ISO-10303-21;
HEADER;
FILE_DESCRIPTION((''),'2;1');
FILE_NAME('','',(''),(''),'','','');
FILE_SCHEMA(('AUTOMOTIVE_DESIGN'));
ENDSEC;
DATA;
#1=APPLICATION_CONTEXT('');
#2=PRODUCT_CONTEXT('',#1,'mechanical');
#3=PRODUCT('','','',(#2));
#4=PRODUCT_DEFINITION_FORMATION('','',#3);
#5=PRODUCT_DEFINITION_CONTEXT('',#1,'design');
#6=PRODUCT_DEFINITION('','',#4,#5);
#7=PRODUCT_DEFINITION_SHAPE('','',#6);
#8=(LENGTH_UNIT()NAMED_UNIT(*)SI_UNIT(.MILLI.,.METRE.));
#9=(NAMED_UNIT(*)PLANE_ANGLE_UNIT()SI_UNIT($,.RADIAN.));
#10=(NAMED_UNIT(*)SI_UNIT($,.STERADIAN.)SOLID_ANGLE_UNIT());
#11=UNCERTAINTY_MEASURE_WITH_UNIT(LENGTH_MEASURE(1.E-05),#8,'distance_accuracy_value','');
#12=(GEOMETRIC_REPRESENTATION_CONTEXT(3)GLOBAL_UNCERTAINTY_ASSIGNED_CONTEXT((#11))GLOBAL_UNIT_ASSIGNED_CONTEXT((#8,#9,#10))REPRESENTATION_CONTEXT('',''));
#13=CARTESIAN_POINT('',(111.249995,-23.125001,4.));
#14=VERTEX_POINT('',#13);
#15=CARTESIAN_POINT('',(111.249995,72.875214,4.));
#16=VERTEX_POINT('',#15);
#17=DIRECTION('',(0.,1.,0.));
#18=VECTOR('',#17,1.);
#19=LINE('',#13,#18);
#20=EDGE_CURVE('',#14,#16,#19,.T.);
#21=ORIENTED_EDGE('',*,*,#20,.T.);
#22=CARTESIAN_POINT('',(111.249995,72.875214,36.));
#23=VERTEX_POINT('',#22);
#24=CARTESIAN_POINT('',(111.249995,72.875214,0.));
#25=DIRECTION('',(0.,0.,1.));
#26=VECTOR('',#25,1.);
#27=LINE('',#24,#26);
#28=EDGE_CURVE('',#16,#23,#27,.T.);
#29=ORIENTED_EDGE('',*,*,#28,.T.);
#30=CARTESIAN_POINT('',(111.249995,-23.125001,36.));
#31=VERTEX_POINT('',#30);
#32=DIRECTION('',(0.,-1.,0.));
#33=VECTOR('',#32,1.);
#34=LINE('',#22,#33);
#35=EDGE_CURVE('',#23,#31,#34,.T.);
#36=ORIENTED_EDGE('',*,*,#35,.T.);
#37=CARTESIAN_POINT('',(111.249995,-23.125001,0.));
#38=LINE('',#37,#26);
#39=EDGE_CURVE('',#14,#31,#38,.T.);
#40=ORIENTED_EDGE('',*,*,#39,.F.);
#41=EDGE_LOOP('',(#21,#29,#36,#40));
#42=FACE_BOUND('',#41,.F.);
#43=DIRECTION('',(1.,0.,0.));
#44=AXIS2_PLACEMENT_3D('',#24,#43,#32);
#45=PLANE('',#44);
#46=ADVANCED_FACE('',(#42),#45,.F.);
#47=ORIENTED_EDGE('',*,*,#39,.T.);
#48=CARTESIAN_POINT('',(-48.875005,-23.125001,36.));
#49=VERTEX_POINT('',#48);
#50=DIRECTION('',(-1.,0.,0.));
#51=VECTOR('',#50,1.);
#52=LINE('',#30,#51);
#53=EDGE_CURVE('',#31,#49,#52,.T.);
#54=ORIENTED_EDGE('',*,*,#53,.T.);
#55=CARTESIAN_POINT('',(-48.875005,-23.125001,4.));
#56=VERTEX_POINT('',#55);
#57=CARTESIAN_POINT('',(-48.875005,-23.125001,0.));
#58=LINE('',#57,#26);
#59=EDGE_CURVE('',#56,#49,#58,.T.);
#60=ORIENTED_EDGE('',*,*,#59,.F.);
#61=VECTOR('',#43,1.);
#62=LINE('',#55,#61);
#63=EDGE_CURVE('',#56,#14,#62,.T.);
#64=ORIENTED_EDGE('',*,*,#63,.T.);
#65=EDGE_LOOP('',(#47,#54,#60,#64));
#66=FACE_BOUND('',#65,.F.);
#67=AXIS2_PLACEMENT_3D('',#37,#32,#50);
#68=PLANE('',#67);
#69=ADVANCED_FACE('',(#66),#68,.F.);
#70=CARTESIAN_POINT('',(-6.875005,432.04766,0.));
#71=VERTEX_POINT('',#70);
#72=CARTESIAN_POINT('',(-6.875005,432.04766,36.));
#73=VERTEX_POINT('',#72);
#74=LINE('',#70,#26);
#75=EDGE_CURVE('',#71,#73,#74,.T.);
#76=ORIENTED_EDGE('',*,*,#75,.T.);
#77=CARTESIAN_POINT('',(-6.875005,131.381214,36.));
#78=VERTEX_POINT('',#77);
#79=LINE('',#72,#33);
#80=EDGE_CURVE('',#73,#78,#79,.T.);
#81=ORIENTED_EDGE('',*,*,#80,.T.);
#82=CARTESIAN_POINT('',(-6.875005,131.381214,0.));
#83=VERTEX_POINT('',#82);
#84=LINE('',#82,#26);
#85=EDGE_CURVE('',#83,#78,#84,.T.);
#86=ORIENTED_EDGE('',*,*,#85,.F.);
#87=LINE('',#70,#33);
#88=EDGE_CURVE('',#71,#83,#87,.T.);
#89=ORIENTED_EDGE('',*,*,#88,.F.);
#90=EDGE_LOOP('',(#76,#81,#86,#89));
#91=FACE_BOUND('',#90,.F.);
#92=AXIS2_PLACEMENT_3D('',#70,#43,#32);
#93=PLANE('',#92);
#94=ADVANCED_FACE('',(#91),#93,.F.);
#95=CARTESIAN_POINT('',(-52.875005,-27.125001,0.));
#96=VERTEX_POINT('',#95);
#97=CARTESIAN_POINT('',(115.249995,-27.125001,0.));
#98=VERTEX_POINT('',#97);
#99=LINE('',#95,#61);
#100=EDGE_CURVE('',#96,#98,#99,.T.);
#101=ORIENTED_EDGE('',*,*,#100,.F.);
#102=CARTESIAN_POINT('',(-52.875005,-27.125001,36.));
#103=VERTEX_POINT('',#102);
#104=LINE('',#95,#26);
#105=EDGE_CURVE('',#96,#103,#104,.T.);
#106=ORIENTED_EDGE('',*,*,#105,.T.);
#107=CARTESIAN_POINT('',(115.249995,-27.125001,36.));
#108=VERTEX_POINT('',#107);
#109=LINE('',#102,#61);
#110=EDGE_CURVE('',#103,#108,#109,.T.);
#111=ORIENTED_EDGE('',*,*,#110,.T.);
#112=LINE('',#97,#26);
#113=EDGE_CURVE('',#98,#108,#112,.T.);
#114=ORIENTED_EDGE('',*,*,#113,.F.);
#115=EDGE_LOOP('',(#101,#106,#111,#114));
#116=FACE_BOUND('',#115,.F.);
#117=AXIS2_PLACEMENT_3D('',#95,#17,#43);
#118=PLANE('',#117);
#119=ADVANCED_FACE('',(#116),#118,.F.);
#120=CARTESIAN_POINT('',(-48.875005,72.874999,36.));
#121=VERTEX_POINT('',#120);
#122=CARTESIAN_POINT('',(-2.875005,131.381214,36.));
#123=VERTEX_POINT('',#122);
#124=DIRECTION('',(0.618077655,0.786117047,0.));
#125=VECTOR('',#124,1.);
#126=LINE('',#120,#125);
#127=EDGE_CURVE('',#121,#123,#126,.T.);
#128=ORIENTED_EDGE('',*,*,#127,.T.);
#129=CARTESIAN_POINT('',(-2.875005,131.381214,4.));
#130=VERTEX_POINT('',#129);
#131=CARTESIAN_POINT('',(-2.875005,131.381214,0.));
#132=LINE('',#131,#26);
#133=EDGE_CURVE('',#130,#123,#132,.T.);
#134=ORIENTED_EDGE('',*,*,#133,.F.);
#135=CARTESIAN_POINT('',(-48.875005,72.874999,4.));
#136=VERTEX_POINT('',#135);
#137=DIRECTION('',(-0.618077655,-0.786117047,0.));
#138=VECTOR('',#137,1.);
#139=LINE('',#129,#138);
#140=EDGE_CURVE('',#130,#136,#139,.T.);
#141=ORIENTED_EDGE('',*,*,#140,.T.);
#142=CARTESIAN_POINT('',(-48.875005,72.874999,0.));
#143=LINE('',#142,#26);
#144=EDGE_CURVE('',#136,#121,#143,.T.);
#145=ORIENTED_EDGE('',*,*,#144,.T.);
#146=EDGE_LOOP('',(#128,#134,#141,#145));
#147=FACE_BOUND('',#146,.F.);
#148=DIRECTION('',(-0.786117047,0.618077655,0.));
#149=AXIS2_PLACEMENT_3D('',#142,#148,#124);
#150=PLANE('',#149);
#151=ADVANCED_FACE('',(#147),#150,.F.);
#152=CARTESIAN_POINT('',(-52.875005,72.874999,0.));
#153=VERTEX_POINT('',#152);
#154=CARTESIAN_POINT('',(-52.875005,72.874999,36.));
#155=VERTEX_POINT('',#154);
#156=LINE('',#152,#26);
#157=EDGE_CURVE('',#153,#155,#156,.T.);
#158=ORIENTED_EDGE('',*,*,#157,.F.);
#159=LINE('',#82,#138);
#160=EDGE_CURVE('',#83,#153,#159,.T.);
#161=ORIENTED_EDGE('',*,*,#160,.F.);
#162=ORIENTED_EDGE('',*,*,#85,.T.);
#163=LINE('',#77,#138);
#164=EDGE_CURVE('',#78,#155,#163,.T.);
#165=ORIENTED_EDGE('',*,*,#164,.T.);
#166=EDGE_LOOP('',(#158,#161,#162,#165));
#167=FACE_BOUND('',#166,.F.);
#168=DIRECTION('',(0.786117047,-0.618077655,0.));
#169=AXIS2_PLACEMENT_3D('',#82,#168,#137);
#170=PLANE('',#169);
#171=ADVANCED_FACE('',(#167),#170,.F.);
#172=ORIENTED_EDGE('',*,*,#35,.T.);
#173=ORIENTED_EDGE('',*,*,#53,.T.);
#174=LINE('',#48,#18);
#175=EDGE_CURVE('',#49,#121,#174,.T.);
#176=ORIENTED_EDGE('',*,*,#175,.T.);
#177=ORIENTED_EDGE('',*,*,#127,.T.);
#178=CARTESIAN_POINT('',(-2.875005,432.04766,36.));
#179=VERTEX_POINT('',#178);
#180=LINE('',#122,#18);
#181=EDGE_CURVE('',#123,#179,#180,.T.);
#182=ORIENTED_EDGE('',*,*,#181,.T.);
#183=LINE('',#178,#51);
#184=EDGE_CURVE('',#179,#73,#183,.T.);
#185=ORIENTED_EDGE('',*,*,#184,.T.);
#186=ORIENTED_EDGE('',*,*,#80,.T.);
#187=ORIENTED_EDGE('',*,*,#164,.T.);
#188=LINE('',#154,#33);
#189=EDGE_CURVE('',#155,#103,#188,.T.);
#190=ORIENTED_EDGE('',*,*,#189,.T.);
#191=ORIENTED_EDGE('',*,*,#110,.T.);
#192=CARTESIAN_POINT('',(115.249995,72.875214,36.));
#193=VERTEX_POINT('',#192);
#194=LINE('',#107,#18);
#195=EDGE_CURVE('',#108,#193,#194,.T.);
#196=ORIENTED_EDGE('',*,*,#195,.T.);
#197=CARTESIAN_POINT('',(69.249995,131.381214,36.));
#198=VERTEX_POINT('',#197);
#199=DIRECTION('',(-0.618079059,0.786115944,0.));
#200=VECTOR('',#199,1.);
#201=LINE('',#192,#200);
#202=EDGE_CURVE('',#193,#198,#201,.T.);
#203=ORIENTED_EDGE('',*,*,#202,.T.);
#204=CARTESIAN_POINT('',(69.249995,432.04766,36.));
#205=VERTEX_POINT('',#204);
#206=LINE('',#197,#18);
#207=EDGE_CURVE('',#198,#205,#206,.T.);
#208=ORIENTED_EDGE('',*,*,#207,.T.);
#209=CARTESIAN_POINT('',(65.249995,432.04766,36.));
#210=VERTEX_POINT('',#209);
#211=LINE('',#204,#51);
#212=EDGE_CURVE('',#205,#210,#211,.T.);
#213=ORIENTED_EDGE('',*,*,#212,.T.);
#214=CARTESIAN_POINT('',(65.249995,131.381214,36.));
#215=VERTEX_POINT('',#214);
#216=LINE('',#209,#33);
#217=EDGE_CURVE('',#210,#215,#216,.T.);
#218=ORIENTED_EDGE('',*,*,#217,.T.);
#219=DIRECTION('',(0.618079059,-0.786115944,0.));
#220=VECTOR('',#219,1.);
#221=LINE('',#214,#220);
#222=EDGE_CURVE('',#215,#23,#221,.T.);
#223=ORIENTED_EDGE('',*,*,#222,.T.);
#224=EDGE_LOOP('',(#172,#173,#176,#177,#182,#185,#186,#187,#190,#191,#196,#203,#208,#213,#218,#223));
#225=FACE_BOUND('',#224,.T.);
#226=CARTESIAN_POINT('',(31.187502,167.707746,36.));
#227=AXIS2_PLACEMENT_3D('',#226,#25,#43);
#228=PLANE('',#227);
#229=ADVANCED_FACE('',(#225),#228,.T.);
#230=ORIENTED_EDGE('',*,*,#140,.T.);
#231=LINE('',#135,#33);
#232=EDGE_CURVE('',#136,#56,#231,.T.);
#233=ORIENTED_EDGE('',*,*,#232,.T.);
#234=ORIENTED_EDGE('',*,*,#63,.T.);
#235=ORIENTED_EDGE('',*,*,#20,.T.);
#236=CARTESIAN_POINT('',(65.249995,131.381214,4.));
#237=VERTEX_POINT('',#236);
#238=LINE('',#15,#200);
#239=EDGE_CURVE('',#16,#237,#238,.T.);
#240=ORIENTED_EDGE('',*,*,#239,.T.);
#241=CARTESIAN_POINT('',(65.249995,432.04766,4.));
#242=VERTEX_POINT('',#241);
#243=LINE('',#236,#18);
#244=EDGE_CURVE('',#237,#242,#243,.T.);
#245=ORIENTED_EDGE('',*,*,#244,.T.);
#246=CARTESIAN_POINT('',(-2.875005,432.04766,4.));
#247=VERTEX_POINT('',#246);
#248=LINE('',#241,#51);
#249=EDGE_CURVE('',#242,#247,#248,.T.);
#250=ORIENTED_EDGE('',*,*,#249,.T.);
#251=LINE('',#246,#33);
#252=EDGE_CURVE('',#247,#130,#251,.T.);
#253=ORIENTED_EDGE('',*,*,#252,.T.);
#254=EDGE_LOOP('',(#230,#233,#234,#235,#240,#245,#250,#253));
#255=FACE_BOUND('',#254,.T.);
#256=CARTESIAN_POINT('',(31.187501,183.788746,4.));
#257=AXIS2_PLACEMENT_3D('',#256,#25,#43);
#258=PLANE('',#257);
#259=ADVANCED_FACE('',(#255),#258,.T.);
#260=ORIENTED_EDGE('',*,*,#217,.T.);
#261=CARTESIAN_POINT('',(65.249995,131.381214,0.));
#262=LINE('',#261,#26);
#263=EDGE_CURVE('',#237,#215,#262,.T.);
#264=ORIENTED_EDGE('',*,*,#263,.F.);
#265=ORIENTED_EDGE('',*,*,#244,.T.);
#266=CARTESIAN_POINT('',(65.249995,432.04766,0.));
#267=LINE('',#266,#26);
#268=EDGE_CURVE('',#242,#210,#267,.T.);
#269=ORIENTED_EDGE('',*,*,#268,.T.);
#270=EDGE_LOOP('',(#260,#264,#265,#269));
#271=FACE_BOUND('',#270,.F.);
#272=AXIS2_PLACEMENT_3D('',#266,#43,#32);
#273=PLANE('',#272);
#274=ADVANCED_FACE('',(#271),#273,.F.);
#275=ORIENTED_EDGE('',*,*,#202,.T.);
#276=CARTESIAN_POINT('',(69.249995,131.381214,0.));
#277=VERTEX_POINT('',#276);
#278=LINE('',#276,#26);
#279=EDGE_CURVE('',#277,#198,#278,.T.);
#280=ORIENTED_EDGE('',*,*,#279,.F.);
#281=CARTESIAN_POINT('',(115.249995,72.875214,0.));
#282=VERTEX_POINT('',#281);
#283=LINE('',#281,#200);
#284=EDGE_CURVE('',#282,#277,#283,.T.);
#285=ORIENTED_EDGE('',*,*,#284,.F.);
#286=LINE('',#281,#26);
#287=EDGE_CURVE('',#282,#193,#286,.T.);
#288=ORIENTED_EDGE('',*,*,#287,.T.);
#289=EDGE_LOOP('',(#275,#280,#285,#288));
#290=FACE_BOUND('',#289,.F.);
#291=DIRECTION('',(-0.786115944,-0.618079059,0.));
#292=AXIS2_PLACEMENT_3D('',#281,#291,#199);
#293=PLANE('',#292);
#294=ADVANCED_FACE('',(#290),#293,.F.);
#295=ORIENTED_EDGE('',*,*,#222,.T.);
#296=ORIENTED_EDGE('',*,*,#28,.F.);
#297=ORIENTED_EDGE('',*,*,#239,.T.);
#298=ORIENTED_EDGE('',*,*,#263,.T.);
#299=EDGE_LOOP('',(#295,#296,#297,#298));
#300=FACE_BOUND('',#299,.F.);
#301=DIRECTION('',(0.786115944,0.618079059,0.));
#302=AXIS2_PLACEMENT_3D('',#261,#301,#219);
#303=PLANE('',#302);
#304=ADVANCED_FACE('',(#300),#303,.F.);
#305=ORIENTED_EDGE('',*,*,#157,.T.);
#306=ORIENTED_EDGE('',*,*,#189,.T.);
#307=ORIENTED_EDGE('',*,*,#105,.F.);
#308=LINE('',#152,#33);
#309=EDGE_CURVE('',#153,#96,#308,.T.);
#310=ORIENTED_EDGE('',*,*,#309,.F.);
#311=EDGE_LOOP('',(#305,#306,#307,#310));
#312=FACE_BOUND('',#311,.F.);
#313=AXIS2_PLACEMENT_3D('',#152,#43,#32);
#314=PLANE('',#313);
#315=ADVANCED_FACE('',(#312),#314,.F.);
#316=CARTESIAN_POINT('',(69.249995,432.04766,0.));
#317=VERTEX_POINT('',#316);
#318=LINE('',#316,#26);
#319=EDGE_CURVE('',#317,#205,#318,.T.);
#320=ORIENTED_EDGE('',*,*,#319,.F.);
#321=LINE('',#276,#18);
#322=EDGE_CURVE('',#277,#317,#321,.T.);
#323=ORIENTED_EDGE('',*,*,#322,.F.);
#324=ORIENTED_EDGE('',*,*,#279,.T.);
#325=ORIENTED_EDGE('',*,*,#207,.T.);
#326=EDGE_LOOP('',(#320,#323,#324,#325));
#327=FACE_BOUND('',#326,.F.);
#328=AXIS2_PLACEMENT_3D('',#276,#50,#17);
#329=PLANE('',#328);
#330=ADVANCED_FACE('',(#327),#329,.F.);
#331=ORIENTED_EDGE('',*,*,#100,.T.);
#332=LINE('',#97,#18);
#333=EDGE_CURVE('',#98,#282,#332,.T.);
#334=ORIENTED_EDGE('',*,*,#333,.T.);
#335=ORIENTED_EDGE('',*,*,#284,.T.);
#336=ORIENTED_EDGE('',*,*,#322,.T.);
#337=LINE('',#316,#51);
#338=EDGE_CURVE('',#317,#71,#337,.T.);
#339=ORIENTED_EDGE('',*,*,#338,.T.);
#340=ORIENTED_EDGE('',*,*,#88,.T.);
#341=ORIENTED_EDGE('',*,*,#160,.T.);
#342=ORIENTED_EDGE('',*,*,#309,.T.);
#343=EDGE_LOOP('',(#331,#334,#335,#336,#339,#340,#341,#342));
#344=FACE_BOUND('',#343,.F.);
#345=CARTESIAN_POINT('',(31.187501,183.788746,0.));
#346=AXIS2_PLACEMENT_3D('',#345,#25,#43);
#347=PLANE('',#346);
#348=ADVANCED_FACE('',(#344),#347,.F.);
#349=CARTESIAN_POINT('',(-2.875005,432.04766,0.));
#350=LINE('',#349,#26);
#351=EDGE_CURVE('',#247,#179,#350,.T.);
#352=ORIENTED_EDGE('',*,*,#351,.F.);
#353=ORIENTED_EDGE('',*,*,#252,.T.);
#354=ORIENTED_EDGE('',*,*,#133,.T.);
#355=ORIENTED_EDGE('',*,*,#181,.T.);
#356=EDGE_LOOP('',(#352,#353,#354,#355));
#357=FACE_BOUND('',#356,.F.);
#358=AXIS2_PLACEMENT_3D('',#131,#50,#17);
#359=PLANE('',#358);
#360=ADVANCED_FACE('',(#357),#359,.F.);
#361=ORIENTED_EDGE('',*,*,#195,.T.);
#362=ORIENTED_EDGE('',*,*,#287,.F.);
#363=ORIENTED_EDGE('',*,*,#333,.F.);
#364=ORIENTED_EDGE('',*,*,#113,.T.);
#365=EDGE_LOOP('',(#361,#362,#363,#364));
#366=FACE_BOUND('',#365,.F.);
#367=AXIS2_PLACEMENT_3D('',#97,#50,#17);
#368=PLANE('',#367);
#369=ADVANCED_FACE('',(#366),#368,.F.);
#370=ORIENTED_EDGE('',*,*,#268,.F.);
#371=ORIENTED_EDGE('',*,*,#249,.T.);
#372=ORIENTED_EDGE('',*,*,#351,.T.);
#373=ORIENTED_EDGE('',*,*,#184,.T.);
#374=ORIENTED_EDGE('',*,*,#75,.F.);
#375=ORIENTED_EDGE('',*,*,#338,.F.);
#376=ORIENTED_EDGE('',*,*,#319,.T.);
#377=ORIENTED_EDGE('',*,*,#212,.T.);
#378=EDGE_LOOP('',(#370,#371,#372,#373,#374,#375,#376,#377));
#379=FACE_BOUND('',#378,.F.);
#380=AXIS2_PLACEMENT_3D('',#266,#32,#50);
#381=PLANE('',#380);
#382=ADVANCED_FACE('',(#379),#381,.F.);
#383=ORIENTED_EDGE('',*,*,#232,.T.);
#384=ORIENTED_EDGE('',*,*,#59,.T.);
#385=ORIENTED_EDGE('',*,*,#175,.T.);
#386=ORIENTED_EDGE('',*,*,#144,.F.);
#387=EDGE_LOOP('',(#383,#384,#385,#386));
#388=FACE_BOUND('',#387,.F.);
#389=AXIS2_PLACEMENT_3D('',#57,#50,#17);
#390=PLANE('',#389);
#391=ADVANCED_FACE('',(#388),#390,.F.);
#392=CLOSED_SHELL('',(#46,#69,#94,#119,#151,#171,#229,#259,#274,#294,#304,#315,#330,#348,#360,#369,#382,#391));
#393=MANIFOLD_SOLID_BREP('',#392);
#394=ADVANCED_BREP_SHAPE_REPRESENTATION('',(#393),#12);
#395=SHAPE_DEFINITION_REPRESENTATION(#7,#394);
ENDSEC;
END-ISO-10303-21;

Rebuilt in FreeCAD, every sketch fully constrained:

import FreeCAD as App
import Part
import Sketcher


def add_polygon(sketch, points):
    """Adds a closed chain of lines whose ends are joined by coincident constraints."""
    first, n = sketch.GeometryCount, len(points)
    for a, b in zip(points, points[1:] + points[:1]):
        sketch.addGeometry(Part.LineSegment(App.Vector(*a, 0), App.Vector(*b, 0)), False)
    for i in range(n):
        sketch.addConstraint(Sketcher.Constraint("Coincident", first + i, 2, first + (i + 1) % n, 1))

doc = App.newDocument("Part")
body = doc.addObject("PartDesign::Body", "Body")

sketch1 = body.newObject("Sketcher::SketchObject", "Sketch")
sketch1.AttachmentSupport = (doc.getObject("XY_Plane"), [""])
sketch1.MapMode = "FlatFace"
add_polygon(sketch1, [(-52.9, 72.9), (-52.9, -27.1), (115.2, -27.1), (115.2, 72.9), (69.2, 131.4), (69.2, 432), (65.2, 432), (65.2, 131.4), (111.2, 72.9), (111.2, -23.1), (-48.9, -23.1), (-48.9, 72.9), (-2.9, 131.4), (-2.9, 432), (-6.9, 432), (-6.9, 131.4)])
sketch1.addConstraint([
    Sketcher.Constraint("Vertical", 0),
    Sketcher.Constraint("Horizontal", 1),
    Sketcher.Constraint("Vertical", 2),
    Sketcher.Constraint("Vertical", 4),
    Sketcher.Constraint("Horizontal", 5),
    Sketcher.Constraint("Vertical", 6),
    Sketcher.Constraint("Vertical", 8),
    Sketcher.Constraint("Horizontal", 9),
    Sketcher.Constraint("Vertical", 10),
    Sketcher.Constraint("Vertical", 12),
    Sketcher.Constraint("Horizontal", 13),
    Sketcher.Constraint("Vertical", 14),
    Sketcher.Constraint("Parallel", 3, 7),
    Sketcher.Constraint("Parallel", 11, 15),
    Sketcher.Constraint("Horizontal", 3, 2, 6, 2),
    Sketcher.Constraint("Horizontal", 2, 2, 7, 2),
    Sketcher.Constraint("Horizontal", 6, 2, 11, 2),
    Sketcher.Constraint("Horizontal", 5, 2, 12, 2),
    Sketcher.Constraint("Horizontal", 11, 2, 14, 2),
    Sketcher.Constraint("Horizontal", 10, 2, 15, 2),
    Sketcher.Constraint("Equal", 5, 13),
    Sketcher.Constraint("DistanceX", 5, 2, 5, 1, 4.0),
    Sketcher.Constraint("DistanceY", 0, 2, 0, 1, 100.0),
    Sketcher.Constraint("DistanceY", 10, 1, 10, 2, 96.0),
    Sketcher.Constraint("DistanceX", 3, 2, 2, 2, 46.0),
    Sketcher.Constraint("DistanceX", 10, 2, 11, 2, 46.0),
    Sketcher.Constraint("DistanceX", 1, 1, 1, 2, 168.125),
    Sketcher.Constraint("DistanceY", 0, 2, -1, 1, 27.125001),
    Sketcher.Constraint("DistanceY", 2, 2, 3, 2, 58.506),
    Sketcher.Constraint("DistanceY", 2, 1, 2, 2, 100.000215),
    Sketcher.Constraint("DistanceY", 4, 1, 4, 2, 300.666446),
    Sketcher.Constraint("DistanceX", 0, 2, -1, 1, 52.875005),
])
pad1 = body.newObject("PartDesign::Pad", "Pad")
pad1.Profile = sketch1
pad1.Length = 36

sketch2 = body.newObject("Sketcher::SketchObject", "Sketch001")
sketch2.AttachmentSupport = (doc.getObject("XY_Plane"), [""])
sketch2.MapMode = "FlatFace"
add_polygon(sketch2, [(65, 432), (-3, 432), (-3, 131), (-49, 73), (-49, -23), (111, -23), (111, 73), (65, 131)])
sketch2.addConstraint([
    Sketcher.Constraint("Horizontal", 0),
    Sketcher.Constraint("Vertical", 1),
    Sketcher.Constraint("Vertical", 3),
    Sketcher.Constraint("Horizontal", 4),
    Sketcher.Constraint("Vertical", 5),
    Sketcher.Constraint("Vertical", 7),
    Sketcher.Constraint("Horizontal", 1, 2, 6, 2),
    Sketcher.Constraint("DistanceY", 3, 2, 3, 1, 96.0),
    Sketcher.Constraint("DistanceX", 2, 2, 1, 2, 46.0),
    Sketcher.Constraint("DistanceX", 6, 2, 5, 2, 46.0),
    Sketcher.Constraint("DistanceX", 0, 2, 0, 1, 68.125),
    Sketcher.Constraint("DistanceY", -1, 1, 2, 2, 72.874999),
    Sketcher.Constraint("DistanceY", 5, 2, 1, 2, 58.506),
    Sketcher.Constraint("DistanceY", 1, 2, 1, 1, 300.666446),
    Sketcher.Constraint("DistanceY", 5, 1, 5, 2, 96.000215),
    Sketcher.Constraint("DistanceX", 0, 2, -1, 1, 2.875005),
])
pad2 = body.newObject("PartDesign::Pad", "Pad001")
pad2.Profile = sketch2
pad2.Length = 4

doc.recompute()
